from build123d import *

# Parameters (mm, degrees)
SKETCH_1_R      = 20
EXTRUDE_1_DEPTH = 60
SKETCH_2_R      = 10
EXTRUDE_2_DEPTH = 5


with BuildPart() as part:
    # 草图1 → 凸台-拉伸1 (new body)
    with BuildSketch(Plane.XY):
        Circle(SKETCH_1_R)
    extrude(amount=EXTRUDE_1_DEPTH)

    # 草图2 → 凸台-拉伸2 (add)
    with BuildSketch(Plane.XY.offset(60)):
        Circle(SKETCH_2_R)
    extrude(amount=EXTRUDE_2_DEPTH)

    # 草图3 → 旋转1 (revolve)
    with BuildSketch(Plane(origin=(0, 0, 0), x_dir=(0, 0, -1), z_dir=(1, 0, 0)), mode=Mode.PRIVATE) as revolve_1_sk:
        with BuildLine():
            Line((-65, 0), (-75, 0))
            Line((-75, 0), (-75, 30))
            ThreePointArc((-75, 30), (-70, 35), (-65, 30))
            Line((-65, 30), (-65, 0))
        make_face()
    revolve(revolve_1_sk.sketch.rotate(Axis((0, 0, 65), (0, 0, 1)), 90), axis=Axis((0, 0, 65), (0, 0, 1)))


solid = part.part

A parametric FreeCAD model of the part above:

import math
import FreeCAD as App
import Part
import Sketcher

V = App.Vector

doc = App.newDocument("Part")
body = doc.addObject("PartDesign::Body", "Body")

# Sketch on XY plane
sketch1 = body.newObject("Sketcher::SketchObject", "Sketch")
sketch1.AttachmentSupport = (doc.getObject("XY_Plane"), [""])
sketch1.MapMode = "FlatFace"
sketch1.addGeometry(Part.Circle(V(0, 0, 0), V(0, 0, 1), 20), False)
sketch1.addConstraint([
    Sketcher.Constraint("Coincident", 0, 3, -1, 1),
    Sketcher.Constraint("Diameter", 0, 40.0),
])
pad1 = body.newObject("PartDesign::Pad", "Pad")
pad1.Profile = sketch1
pad1.Length = 60

# Sketch on XY plane
sketch2 = body.newObject("Sketcher::SketchObject", "Sketch001")
sketch2.AttachmentSupport = (doc.getObject("XY_Plane"), [""])
sketch2.MapMode = "FlatFace"
sketch2.AttachmentOffset = App.Placement(V(0, 0, 60), App.Rotation())
sketch2.addGeometry(Part.Circle(V(0, 0, 0), V(0, 0, 1), 10), False)
sketch2.addConstraint([
    Sketcher.Constraint("Coincident", 0, 3, -1, 1),
    Sketcher.Constraint("Diameter", 0, 20.0),
])
pad2 = body.newObject("PartDesign::Pad", "Pad001")
pad2.Profile = sketch2
pad2.Length = 5

# Sketch on YZ plane
sketch3 = body.newObject("Sketcher::SketchObject", "Sketch002")
sketch3.AttachmentSupport = (doc.getObject("YZ_Plane"), [""])
sketch3.MapMode = "FlatFace"
sketch3.addGeometry([
    Part.LineSegment(V(0, 75, 0), V(0, 65, 0)),
    Part.LineSegment(V(0, 65, 0), V(30, 65, 0)),
    Part.ArcOfCircle(Part.Circle(V(30, 70, 0), V(0, 0, 1), 5), math.radians(-90), math.radians(90)),
    Part.LineSegment(V(30, 75, 0), V(0, 75, 0)),
], False)
sketch3.addConstraint([
    Sketcher.Constraint("Coincident", 0, 2, 1, 1),
    Sketcher.Constraint("Tangent", 1, 2, 2, 1),
    Sketcher.Constraint("Tangent", 2, 2, 3, 1),
    Sketcher.Constraint("Coincident", 3, 2, 0, 1),
    Sketcher.Constraint("Vertical", 0),
    Sketcher.Constraint("Horizontal", 1),
    Sketcher.Constraint("Horizontal", 3),
    Sketcher.Constraint("PointOnObject", 0, 2, -2),
    Sketcher.Constraint("Radius", 2, 5.0),
    Sketcher.Constraint("DistanceX", 1, 1, 1, 2, 30.0),
    Sketcher.Constraint("DistanceY", -1, 1, 2, 3, 70.0),
])
revolution = body.newObject("PartDesign::Revolution", "Revolution")
revolution.Profile = sketch3
revolution.ReferenceAxis = (sketch3, ["V_Axis"])
revolution.Angle = 360

doc.recompute()
